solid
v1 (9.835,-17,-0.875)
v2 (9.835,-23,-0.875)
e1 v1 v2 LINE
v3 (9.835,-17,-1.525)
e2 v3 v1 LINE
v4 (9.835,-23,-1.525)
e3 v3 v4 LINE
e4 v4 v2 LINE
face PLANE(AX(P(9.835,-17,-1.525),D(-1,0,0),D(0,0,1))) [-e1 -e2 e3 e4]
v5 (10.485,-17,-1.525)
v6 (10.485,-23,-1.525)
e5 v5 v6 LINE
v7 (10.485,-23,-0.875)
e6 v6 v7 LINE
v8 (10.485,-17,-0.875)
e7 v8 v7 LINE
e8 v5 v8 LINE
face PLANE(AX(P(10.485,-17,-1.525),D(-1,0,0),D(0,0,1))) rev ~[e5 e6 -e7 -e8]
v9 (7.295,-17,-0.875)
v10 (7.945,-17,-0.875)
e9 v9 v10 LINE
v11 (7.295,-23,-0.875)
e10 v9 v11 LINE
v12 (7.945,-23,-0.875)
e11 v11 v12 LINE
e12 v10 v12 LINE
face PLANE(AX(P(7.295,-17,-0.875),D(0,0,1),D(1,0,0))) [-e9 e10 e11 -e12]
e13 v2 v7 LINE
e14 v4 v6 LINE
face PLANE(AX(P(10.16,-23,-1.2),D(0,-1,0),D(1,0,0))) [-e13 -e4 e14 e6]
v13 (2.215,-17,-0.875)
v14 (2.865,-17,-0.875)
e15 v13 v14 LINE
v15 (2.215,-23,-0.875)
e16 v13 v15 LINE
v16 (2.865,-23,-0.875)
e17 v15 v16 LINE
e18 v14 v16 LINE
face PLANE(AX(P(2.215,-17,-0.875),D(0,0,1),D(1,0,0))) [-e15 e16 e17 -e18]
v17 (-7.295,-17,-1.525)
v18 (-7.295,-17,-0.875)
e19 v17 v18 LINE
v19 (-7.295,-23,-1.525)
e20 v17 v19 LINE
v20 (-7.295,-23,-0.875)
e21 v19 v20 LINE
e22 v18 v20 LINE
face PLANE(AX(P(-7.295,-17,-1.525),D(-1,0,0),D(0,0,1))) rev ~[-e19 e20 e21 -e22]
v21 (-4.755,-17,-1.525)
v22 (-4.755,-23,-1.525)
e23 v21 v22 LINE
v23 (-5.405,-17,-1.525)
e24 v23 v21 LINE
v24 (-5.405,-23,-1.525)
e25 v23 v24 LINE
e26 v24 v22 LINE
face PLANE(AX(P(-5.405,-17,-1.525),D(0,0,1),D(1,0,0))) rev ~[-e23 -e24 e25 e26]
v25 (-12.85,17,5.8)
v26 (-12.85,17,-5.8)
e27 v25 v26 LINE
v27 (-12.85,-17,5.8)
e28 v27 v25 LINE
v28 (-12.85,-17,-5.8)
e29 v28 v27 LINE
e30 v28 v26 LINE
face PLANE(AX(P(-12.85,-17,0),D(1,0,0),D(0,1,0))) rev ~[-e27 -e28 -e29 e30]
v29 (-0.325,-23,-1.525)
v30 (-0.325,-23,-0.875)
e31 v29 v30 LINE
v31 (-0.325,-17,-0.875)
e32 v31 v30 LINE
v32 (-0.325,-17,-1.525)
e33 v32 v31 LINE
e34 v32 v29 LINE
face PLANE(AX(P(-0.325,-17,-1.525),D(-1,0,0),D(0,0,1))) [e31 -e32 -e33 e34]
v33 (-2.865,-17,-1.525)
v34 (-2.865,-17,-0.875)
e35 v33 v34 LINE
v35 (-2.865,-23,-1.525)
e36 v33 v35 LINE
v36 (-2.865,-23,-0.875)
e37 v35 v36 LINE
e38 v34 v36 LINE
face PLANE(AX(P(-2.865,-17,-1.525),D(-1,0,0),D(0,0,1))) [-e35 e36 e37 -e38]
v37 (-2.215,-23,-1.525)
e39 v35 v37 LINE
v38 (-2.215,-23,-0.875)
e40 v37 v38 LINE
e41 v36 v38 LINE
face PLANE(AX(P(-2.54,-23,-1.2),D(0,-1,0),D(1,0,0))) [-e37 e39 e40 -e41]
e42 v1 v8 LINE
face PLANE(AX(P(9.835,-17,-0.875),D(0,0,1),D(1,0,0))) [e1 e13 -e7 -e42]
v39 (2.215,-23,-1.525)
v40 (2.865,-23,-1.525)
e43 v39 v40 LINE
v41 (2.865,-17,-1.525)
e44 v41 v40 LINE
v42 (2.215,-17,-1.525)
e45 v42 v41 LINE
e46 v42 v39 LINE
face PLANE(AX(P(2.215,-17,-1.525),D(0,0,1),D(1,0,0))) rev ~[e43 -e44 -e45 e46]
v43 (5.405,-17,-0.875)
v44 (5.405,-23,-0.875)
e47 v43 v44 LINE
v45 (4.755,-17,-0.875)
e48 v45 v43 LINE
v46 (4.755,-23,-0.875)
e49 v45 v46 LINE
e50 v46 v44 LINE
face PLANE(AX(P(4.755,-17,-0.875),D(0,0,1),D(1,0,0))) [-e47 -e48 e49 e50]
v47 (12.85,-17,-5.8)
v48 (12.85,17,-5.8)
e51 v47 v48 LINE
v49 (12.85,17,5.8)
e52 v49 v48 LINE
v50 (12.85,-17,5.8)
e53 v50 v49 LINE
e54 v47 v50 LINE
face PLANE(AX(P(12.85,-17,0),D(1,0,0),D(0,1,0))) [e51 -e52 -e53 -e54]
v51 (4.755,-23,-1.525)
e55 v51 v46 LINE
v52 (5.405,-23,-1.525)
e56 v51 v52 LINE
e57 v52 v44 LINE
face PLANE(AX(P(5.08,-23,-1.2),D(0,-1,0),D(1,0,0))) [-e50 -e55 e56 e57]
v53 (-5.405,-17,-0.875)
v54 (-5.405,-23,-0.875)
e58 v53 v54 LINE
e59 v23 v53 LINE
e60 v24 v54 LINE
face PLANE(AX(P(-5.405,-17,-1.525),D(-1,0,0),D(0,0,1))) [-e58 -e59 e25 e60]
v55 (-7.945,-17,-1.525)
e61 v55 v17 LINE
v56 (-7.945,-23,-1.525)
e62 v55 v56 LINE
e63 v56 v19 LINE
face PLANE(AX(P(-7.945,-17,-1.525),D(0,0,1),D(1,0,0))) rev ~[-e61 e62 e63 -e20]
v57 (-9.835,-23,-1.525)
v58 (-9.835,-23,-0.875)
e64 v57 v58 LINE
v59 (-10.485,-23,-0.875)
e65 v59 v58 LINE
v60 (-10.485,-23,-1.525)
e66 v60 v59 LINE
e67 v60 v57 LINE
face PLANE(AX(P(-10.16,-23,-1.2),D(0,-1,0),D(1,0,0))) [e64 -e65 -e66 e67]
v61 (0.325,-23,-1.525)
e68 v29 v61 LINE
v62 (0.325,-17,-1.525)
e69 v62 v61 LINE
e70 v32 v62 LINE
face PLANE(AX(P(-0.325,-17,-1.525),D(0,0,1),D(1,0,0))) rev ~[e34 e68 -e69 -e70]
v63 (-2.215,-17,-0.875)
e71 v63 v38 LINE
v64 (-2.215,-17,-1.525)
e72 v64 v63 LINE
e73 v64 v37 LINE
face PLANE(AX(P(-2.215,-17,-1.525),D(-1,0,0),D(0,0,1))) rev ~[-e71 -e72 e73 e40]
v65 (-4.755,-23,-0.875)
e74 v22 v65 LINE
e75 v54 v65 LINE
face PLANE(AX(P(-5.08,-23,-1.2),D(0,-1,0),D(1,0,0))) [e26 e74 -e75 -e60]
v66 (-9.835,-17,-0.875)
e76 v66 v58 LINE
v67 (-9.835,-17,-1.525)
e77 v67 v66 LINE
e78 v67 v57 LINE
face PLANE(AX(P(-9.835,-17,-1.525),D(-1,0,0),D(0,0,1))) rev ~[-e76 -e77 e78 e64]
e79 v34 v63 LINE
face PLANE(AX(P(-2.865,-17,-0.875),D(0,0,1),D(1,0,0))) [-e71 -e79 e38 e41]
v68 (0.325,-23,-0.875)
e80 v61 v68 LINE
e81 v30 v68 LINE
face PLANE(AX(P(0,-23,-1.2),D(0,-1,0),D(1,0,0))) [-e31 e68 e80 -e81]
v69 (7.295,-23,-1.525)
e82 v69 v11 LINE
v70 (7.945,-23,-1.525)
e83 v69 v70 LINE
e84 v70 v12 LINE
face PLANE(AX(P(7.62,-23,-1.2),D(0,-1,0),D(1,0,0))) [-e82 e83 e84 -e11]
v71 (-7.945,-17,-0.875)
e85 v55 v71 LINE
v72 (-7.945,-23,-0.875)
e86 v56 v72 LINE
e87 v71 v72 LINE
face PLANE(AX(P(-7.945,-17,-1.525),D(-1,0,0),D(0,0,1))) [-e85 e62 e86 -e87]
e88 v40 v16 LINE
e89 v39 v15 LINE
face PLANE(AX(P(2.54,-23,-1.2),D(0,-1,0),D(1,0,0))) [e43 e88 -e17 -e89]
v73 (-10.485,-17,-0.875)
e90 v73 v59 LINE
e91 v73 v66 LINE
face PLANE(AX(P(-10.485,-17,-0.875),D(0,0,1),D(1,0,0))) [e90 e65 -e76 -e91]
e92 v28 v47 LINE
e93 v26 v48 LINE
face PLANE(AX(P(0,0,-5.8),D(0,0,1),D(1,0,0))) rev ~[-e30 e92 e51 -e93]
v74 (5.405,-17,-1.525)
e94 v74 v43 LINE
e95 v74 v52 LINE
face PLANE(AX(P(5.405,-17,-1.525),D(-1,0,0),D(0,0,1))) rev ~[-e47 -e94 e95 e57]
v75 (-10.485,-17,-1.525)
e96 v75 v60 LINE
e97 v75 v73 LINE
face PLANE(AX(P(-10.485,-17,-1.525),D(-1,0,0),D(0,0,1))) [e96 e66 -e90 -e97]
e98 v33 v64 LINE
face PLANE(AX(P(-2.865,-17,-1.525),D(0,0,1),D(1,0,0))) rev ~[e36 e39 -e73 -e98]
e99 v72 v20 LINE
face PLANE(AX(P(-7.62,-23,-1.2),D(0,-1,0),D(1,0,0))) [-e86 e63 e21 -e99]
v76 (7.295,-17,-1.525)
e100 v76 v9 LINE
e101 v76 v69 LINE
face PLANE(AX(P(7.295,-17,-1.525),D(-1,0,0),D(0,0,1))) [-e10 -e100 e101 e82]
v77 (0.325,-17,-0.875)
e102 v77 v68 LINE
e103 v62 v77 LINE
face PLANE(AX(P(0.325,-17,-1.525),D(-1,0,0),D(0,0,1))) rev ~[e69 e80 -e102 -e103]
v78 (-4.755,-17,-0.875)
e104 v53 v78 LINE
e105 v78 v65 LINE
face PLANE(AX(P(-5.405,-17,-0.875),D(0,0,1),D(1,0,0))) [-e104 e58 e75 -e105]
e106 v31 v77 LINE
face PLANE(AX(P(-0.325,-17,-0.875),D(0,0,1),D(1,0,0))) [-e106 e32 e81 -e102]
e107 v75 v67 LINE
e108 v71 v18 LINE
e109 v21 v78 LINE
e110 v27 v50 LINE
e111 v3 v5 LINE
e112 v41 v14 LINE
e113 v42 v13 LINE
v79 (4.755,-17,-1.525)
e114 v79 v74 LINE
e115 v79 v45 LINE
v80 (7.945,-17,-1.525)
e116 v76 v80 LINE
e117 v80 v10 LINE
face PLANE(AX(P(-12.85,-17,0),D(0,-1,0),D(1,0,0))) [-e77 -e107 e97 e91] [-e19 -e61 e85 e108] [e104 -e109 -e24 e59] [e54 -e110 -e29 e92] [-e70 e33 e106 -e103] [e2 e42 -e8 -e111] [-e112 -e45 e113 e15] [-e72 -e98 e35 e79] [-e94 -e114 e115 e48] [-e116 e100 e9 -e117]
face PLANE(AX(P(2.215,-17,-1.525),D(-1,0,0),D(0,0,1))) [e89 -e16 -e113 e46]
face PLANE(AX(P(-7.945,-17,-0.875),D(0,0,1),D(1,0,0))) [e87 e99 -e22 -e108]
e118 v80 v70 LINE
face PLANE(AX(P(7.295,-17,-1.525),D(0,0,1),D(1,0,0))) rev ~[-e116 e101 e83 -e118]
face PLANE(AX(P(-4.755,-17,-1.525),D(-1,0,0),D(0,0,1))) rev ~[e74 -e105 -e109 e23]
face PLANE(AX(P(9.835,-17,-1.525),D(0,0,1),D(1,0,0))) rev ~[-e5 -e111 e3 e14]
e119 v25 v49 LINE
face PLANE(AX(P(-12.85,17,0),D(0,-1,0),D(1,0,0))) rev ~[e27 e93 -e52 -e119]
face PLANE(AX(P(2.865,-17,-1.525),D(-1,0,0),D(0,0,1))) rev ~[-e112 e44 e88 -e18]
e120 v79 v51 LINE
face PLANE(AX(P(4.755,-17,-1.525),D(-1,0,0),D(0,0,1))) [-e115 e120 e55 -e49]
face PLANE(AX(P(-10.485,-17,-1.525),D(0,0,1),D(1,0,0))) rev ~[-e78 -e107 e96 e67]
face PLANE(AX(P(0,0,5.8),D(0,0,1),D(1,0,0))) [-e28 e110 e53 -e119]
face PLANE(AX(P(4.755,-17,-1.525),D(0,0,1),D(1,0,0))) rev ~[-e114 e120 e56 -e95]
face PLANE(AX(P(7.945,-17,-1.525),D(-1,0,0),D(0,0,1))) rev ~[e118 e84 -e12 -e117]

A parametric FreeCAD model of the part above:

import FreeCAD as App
import Part
import Sketcher

V = App.Vector
Q = App.Units.Quantity


def add_polygon(sketch, points):
    """Adds a closed chain of lines whose ends are joined by coincident constraints."""
    first, n = sketch.GeometryCount, len(points)
    for a, b in zip(points, points[1:] + points[:1]):
        sketch.addGeometry(Part.LineSegment(App.Vector(*a, 0), App.Vector(*b, 0)), False)
    for i in range(n):
        sketch.addConstraint(Sketcher.Constraint("Coincident", first + i, 2, first + (i + 1) % n, 1))

doc = App.newDocument("Part")
params = doc.addObject("Spreadsheet::Sheet", "Params")
for row, (alias, value) in enumerate([
    ("sketch1_height", "34 mm"),
    ("sketch1_width", "25.7 mm"),
    ("pad1_length", "11.6 mm"),
    ("sketch2_width", "0.65 mm"),
    ("pad2_length", "6 mm"),
    ("linearpattern_pitch", "2.54 mm"),
    ("linearpattern2_pitch", "2.54 mm"),
], start=1):
    params.set(f"A{row}", alias)
    params.set(f"B{row}", "=" + value)
    params.setAlias(f"B{row}", alias)

body = doc.addObject("PartDesign::Body", "Body")

# Sketch on XY plane
sketch1 = doc.addObject("Sketcher::SketchObject", "Sketch")
body.addObject(sketch1)
sketch1.AttachmentSupport = (doc.XY_Plane, [""])
sketch1.MapMode = "FlatFace"
add_polygon(sketch1, [(-13, 17), (-13, -17), (13, -17), (13, 17)])  # lines 0-3
sketch1.addConstraint([
    Sketcher.Constraint("Vertical", 0),
    Sketcher.Constraint("Horizontal", 1),
    Sketcher.Constraint("Vertical", 2),
    Sketcher.Constraint("Horizontal", 3),
    Sketcher.Constraint("Symmetric", 0, 2, 2, 2, -1, 1),
    Sketcher.Constraint("DistanceY", 0, 2, 0, 1, Q("34 mm")),
    Sketcher.Constraint("DistanceX", 1, 1, 1, 2, Q("25.7 mm")),
])
sketch1.setExpression("Constraints[9]", "Params.sketch1_height")
sketch1.setExpression("Constraints[10]", "Params.sketch1_width")
pad1 = doc.addObject("PartDesign::Pad", "Pad")
body.addObject(pad1)
pad1.Profile = sketch1
pad1.setExpression("Length", "Params.pad1_length")
pad1.Midplane = True

# Sketch on XZ plane
sketch2 = doc.addObject("Sketcher::SketchObject", "Sketch001")
body.addObject(sketch2)
sketch2.AttachmentSupport = (doc.XZ_Plane, [""])
sketch2.MapMode = "FlatFace"
sketch2.AttachmentOffset = App.Placement(V(0, 0, 17), App.Rotation())
add_polygon(sketch2, [(-0.3, -0.9), (-0.3, -1.5), (0.3, -1.5), (0.3, -0.9)])  # lines 0-3
sketch2.addConstraint([
    Sketcher.Constraint("Vertical", 0),
    Sketcher.Constraint("Horizontal", 1),
    Sketcher.Constraint("Vertical", 2),
    Sketcher.Constraint("Horizontal", 3),
    Sketcher.Constraint("Equal", 3, 0),
    Sketcher.Constraint("DistanceX", 1, 1, 1, 2, Q("0.65 mm")),
    Sketcher.Constraint("DistanceX", 0, 2, -1, 1, Q("0.325 mm")),
    Sketcher.Constraint("DistanceY", 0, 2, -1, 1, Q("1.525 mm")),
])
sketch2.setExpression("Constraints[9]", "Params.sketch2_width")
pad2 = doc.addObject("PartDesign::Pad", "Pad001")
body.addObject(pad2)
pad2.Profile = sketch2
pad2.setExpression("Length", "Params.pad2_length")
doc.recompute()

linearpattern = doc.addObject("PartDesign::LinearPattern", "LinearPattern")
body.addObject(linearpattern)
linearpattern.Originals = [pad2]
linearpattern.Direction = (doc.X_Axis, [""])
linearpattern.Mode = "offset"
linearpattern.setExpression("Offset", "Params.linearpattern_pitch")
linearpattern.Occurrences = 5
body.Tip = linearpattern
doc.recompute()

linearpattern2 = doc.addObject("PartDesign::LinearPattern", "LinearPattern001")
body.addObject(linearpattern2)
linearpattern2.Originals = [pad2]
linearpattern2.Direction = (doc.X_Axis, [""])
linearpattern2.Mode = "offset"
linearpattern2.setExpression("Offset", "Params.linearpattern2_pitch")
linearpattern2.Occurrences = 5
linearpattern2.Reversed = True
body.Tip = linearpattern2

doc.recompute()
